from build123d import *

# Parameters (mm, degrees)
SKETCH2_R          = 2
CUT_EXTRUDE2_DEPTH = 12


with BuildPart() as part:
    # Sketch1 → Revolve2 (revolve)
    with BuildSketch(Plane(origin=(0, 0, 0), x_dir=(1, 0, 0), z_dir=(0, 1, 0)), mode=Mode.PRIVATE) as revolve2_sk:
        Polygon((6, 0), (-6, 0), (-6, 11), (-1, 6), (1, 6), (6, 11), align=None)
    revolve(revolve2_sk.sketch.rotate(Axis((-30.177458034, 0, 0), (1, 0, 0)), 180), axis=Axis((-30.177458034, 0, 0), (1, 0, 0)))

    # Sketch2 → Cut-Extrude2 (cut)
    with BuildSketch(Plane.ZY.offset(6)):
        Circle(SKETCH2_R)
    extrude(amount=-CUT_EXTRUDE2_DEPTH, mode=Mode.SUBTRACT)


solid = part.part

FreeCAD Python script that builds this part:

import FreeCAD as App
import Part
import Sketcher
Q = App.Units.Quantity

doc = App.newDocument("Part")
body = doc.addObject("PartDesign::Body", "Body")

sketch1 = body.newObject("Sketcher::SketchObject", "Sketch")
sketch1.AttachmentSupport = (doc.getObject("XZ_Plane"), [""])
sketch1.MapMode = "FlatFace"
sketch1.addGeometry([
    Part.LineSegment(App.Vector(-6, 0, 0), App.Vector(6, 0, 0)),
    Part.LineSegment(App.Vector(6, 0, 0), App.Vector(6, -11, 0)),
    Part.LineSegment(App.Vector(6, -11, 0), App.Vector(1, -6, 0)),
    Part.LineSegment(App.Vector(1, -6, 0), App.Vector(-1, -6, 0)),
    Part.LineSegment(App.Vector(-1, -6, 0), App.Vector(-6, -11, 0)),
    Part.LineSegment(App.Vector(-6, -11, 0), App.Vector(-6, 0, 0)),
], False)
sketch1.addConstraint([
    Sketcher.Constraint("Coincident", 0, 2, 1, 1),
    Sketcher.Constraint("Coincident", 1, 2, 2, 1),
    Sketcher.Constraint("Coincident", 2, 2, 3, 1),
    Sketcher.Constraint("Coincident", 3, 2, 4, 1),
    Sketcher.Constraint("Coincident", 4, 2, 5, 1),
    Sketcher.Constraint("Coincident", 5, 2, 0, 1),
    Sketcher.Constraint("Horizontal", 0),
    Sketcher.Constraint("Vertical", 1),
    Sketcher.Constraint("Horizontal", 3),
    Sketcher.Constraint("Vertical", 5),
    Sketcher.Constraint("Symmetric", 0, 2, 5, 2, -1, 1),
    Sketcher.Constraint("Perpendicular", 2, 4),
    Sketcher.Constraint("Horizontal", 1, 2, 4, 2),
    Sketcher.Constraint("Equal", 2, 4),
    Sketcher.Constraint("DistanceX", 0, 1, 0, 2, Q("12 mm")),
    Sketcher.Constraint("DistanceX", 3, 2, 3, 1, Q("2 mm")),
    Sketcher.Constraint("DistanceY", 1, 2, 1, 1, Q("11 mm")),
])
revolution = body.newObject("PartDesign::Revolution", "Revolution")
revolution.Profile = sketch1
revolution.ReferenceAxis = (sketch1, ["H_Axis"])
revolution.Angle = 360

sketch2 = body.newObject("Sketcher::SketchObject", "Sketch001")
sketch2.AttachmentSupport = (doc.getObject("YZ_Plane"), [""])
sketch2.MapMode = "FlatFace"
sketch2.AttachmentOffset = App.Placement(App.Vector(0, 0, -6), App.Rotation())
sketch2.addGeometry(Part.Circle(App.Vector(0, 0, 0), App.Vector(0, 0, 1), 2), False)
sketch2.addConstraint([
    Sketcher.Constraint("Coincident", 0, 3, -1, 1),
    Sketcher.Constraint("Diameter", 0, Q("4 mm")),
])
pocket1 = body.newObject("PartDesign::Pocket", "Pocket")
pocket1.Profile = sketch2
pocket1.Length = 12
pocket1.Reversed = True

doc.recompute()
